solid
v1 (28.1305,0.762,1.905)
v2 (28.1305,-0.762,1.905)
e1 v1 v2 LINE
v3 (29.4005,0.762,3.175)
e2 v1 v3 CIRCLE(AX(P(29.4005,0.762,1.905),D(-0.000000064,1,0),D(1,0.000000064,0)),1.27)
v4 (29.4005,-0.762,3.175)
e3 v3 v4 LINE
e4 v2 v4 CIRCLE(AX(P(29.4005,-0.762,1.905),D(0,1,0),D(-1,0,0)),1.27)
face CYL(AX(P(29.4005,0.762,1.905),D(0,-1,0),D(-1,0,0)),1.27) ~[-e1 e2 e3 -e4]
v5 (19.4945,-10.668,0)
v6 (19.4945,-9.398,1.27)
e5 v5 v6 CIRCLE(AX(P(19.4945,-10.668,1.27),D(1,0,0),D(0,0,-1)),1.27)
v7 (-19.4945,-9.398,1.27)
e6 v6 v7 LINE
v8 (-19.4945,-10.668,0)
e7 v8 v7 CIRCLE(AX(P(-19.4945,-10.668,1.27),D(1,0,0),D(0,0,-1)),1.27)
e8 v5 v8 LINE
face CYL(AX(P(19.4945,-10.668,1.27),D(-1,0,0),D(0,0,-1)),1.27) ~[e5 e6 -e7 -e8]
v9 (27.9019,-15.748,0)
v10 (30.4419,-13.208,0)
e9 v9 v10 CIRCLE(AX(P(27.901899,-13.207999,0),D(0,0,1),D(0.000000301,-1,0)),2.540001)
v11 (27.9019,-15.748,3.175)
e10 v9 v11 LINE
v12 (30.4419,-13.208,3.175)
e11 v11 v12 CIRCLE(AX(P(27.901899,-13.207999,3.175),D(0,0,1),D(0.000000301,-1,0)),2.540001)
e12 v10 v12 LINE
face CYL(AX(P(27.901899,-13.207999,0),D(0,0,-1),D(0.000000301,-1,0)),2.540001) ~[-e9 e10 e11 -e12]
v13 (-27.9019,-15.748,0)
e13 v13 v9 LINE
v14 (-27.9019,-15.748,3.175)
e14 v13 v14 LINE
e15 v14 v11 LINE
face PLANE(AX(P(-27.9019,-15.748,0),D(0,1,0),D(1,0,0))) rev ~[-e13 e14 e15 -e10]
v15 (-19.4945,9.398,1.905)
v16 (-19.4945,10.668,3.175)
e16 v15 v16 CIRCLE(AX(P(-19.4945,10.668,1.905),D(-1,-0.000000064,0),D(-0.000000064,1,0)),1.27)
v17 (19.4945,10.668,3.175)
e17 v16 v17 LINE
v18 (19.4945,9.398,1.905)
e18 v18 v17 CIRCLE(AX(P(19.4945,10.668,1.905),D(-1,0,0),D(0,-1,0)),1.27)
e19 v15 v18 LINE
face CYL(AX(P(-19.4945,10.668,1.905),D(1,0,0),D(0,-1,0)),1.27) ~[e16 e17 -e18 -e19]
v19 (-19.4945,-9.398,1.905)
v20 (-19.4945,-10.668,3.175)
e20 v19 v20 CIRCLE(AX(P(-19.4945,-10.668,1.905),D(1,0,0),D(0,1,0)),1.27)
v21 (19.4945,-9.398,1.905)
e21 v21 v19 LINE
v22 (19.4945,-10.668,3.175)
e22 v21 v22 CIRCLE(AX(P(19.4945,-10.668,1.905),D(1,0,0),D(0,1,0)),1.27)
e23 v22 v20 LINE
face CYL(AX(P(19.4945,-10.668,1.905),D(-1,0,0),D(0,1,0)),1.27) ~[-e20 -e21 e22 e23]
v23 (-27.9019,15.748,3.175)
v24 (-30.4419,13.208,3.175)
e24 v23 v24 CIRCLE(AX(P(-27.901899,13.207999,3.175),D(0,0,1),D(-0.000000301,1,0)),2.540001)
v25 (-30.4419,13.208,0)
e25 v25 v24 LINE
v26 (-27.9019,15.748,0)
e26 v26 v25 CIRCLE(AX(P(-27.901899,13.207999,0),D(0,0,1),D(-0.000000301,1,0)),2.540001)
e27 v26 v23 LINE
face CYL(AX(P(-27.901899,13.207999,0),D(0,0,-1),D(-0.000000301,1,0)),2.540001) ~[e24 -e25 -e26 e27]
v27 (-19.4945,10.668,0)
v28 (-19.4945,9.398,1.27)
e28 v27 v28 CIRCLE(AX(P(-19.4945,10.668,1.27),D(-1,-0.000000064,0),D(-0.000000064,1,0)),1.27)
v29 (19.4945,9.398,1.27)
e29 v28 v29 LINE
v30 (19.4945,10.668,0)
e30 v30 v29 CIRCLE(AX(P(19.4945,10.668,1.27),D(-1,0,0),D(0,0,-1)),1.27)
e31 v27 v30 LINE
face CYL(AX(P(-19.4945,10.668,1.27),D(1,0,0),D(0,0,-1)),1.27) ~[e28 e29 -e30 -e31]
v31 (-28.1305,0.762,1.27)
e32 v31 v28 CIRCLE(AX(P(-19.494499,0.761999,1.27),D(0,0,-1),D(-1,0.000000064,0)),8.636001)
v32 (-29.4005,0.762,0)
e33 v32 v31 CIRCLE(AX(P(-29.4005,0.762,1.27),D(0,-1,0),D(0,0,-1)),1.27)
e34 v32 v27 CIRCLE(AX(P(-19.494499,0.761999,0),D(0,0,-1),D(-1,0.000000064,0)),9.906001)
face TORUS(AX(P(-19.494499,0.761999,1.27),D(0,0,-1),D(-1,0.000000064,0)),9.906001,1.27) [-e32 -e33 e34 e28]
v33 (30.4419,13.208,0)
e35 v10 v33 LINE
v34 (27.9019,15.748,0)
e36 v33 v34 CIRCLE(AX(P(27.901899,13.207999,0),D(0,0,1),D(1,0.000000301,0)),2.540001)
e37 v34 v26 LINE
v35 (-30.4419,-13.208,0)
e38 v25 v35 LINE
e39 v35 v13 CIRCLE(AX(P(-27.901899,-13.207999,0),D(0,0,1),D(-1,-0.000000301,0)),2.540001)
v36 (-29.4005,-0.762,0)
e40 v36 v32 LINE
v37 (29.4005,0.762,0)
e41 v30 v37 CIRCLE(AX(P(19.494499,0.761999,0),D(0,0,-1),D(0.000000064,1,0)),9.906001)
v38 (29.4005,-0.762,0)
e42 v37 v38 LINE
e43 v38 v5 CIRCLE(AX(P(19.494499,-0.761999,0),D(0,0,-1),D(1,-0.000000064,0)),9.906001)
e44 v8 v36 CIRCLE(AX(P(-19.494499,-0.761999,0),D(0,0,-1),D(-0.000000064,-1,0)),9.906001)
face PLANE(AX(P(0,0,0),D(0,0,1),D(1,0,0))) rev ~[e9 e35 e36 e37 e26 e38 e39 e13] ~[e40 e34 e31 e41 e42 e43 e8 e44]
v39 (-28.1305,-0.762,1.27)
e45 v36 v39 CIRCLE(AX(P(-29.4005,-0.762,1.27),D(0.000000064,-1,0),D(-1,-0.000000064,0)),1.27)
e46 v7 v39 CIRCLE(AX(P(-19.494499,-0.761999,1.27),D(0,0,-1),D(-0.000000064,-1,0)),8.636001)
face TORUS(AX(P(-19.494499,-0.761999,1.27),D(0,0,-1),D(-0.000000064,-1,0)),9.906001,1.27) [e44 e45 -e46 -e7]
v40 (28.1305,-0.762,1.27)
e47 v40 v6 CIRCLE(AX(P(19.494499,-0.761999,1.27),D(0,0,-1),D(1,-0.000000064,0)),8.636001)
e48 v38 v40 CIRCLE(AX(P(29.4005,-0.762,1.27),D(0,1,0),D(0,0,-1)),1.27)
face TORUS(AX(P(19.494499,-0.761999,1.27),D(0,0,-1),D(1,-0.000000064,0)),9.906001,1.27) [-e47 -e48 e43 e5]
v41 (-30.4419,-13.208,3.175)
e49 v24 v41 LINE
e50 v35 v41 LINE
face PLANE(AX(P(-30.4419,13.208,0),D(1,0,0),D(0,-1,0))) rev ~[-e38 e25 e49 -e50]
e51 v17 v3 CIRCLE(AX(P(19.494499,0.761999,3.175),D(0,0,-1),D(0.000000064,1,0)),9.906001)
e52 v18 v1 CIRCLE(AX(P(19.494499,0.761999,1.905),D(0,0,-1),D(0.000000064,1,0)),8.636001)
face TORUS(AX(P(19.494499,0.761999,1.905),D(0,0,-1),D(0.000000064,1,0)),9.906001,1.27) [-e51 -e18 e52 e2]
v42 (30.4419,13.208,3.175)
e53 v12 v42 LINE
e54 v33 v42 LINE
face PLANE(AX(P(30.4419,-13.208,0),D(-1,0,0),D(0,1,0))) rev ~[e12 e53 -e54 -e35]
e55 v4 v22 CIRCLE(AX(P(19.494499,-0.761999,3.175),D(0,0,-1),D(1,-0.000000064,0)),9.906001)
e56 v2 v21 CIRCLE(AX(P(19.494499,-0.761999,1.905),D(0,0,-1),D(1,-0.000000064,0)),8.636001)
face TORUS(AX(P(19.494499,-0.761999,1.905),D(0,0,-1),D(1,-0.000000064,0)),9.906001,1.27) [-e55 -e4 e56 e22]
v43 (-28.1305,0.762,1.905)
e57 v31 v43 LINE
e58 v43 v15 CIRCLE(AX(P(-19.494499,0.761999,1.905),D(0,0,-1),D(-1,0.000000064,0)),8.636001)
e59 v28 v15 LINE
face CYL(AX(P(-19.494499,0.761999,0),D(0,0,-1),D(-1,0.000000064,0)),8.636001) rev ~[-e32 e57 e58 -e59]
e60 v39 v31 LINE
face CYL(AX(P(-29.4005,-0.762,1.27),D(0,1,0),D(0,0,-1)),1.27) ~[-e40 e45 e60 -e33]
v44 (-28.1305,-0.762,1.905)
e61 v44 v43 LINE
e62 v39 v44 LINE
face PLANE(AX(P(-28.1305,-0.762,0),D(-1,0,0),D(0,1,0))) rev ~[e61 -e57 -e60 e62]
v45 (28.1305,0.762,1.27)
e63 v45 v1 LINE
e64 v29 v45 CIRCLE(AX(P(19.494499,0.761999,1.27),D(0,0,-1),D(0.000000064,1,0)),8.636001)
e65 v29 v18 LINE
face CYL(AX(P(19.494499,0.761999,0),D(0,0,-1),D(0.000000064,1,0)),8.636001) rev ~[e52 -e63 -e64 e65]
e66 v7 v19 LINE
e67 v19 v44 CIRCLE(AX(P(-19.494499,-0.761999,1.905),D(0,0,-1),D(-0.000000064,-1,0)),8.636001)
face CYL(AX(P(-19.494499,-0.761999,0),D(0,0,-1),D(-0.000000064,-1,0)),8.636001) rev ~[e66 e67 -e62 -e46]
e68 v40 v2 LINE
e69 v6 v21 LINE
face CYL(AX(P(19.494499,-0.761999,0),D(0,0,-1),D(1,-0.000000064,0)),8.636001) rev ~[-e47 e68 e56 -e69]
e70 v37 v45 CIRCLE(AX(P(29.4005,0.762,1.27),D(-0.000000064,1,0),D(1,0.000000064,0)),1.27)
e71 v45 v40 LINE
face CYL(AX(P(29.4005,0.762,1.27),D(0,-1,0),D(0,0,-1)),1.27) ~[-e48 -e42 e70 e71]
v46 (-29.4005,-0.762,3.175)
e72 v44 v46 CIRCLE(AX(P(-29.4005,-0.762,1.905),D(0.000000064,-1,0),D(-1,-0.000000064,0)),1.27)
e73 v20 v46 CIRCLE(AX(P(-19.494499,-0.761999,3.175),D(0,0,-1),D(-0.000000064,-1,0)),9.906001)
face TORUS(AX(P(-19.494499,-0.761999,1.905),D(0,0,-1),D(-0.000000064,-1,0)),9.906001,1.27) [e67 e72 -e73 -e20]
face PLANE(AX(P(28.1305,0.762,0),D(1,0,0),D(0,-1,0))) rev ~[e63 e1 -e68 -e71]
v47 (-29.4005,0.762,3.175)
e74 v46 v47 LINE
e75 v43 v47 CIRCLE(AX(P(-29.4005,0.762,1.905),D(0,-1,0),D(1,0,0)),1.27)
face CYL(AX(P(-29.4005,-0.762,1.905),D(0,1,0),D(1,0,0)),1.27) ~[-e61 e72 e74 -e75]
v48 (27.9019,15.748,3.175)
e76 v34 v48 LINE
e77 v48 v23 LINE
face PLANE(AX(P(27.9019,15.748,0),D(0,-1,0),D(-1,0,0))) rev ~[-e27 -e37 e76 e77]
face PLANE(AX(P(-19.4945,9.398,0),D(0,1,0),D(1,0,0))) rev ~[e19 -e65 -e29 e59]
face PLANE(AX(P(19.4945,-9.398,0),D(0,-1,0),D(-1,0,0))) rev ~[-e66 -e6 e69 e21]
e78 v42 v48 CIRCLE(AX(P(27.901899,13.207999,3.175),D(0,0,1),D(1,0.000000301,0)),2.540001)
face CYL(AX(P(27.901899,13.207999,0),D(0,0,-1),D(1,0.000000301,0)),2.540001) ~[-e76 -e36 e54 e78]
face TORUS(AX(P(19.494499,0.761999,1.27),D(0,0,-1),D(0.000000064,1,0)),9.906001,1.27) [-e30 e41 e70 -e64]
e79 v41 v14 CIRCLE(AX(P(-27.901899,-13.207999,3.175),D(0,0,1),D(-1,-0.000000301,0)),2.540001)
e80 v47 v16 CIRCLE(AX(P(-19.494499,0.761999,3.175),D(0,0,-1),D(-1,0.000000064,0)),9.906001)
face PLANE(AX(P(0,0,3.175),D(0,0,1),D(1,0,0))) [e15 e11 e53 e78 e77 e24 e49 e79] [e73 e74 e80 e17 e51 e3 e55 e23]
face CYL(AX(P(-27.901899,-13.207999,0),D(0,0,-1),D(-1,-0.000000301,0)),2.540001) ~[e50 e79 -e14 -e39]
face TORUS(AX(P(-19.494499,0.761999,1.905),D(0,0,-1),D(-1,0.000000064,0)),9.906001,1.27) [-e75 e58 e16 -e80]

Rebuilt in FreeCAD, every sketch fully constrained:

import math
import FreeCAD as App
import Part
import Sketcher
from FreeCAD import Vector
Q = App.Units.Quantity


def edges_at(feature, points):
    """Names of the edges that pass closest to the given points."""
    edges = feature.Shape.Edges
    near = lambda p: min(range(len(edges)), key=lambda i: edges[i].distToShape(Part.Vertex(*p))[0])
    return sorted({f"Edge{near(p) + 1}" for p in points})

doc = App.newDocument("Part")
params = doc.addObject("Spreadsheet::Sheet", "Params")
for row, (alias, value) in enumerate([
    ("sketch1_radius", "0.1 in"),
    ("sketch1_radius2", "0.34 in"),
    ("sketch1_height", "1.04 in"),
    ("sketch1_height2", "0.06 in"),
    ("sketch1_width", "2.197 in"),
    ("pad1_length", "0.125 in"),
    ("fillet_radius", "0.05 in"),
    ("fillet2_radius", "0.05 in"),
], start=1):
    params.set(f"A{row}", alias)
    params.set(f"B{row}", "=" + value)
    params.setAlias(f"B{row}", alias)

body = doc.addObject("PartDesign::Body", "Body")

# Sketch on XY plane
sketch1 = body.newObject("Sketcher::SketchObject", "Sketch")
sketch1.AttachmentSupport = (doc.getObject("XY_Plane"), [""])
sketch1.MapMode = "FlatFace"
sketch1.addGeometry([
    Part.ArcOfCircle(Part.Circle(Vector(27.9, 13.2, 0), Vector(0, 0, 1), 2.5), math.radians(0), math.radians(90)),  # 0
    Part.LineSegment(Vector(27.9, 15.7, 0), Vector(-27.9, 15.7, 0)),  # 1
    Part.ArcOfCircle(Part.Circle(Vector(-27.9, 13.2, 0), Vector(0, 0, 1), 2.5), math.radians(90), math.radians(180)),  # 2
    Part.LineSegment(Vector(-30.4, 13.2, 0), Vector(-30.4, -13.2, 0)),  # 3
    Part.ArcOfCircle(Part.Circle(Vector(-27.9, -13.2, 0), Vector(0, 0, 1), 2.5), math.radians(-180), math.radians(-90)),  # 4
    Part.LineSegment(Vector(-27.9, -15.7, 0), Vector(27.9, -15.7, 0)),  # 5
    Part.ArcOfCircle(Part.Circle(Vector(27.9, -13.2, 0), Vector(0, 0, 1), 2.5), math.radians(-90), math.radians(0)),  # 6
    Part.LineSegment(Vector(30.4, -13.2, 0), Vector(30.4, 13.2, 0)),  # 7
    Part.LineSegment(Vector(28.1, 0.8, 0), Vector(28.1, -0.8, 0)),  # 8
    Part.ArcOfCircle(Part.Circle(Vector(19.5, -0.8, 0), Vector(0, 0, 1), 8.6), math.radians(-90), math.radians(0)),  # 9
    Part.LineSegment(Vector(19.5, -9.4, 0), Vector(-19.5, -9.4, 0)),  # 10
    Part.ArcOfCircle(Part.Circle(Vector(-19.5, -0.8, 0), Vector(0, 0, 1), 8.6), math.radians(-180), math.radians(-90)),  # 11
    Part.LineSegment(Vector(-28.1, -0.8, 0), Vector(-28.1, 0.8, 0)),  # 12
    Part.ArcOfCircle(Part.Circle(Vector(-19.5, 0.8, 0), Vector(0, 0, 1), 8.6), math.radians(90), math.radians(180)),  # 13
    Part.LineSegment(Vector(-19.5, 9.4, 0), Vector(19.5, 9.4, 0)),  # 14
    Part.ArcOfCircle(Part.Circle(Vector(19.5, 0.8, 0), Vector(0, 0, 1), 8.6), math.radians(0), math.radians(90)),  # 15
], False)
sketch1.addConstraint([
    Sketcher.Constraint("Tangent", 0, 2, 1, 1),
    Sketcher.Constraint("Tangent", 1, 2, 2, 1),
    Sketcher.Constraint("Tangent", 2, 2, 3, 1),
    Sketcher.Constraint("Tangent", 3, 2, 4, 1),
    Sketcher.Constraint("Tangent", 4, 2, 5, 1),
    Sketcher.Constraint("Tangent", 5, 2, 6, 1),
    Sketcher.Constraint("Tangent", 6, 2, 7, 1),
    Sketcher.Constraint("Tangent", 7, 2, 0, 1),
    Sketcher.Constraint("Tangent", 8, 2, 9, 2),
    Sketcher.Constraint("Tangent", 9, 1, 10, 1),
    Sketcher.Constraint("Tangent", 10, 2, 11, 2),
    Sketcher.Constraint("Tangent", 11, 1, 12, 1),
    Sketcher.Constraint("Tangent", 12, 2, 13, 2),
    Sketcher.Constraint("Tangent", 13, 1, 14, 1),
    Sketcher.Constraint("Tangent", 14, 2, 15, 2),
    Sketcher.Constraint("Tangent", 15, 1, 8, 1),
    Sketcher.Constraint("Horizontal", 1),
    Sketcher.Constraint("Vertical", 3),
    Sketcher.Constraint("Horizontal", 5),
    Sketcher.Constraint("Vertical", 7),
    Sketcher.Constraint("Vertical", 8),
    Sketcher.Constraint("Horizontal", 10),
    Sketcher.Constraint("Vertical", 12),
    Sketcher.Constraint("Horizontal", 14),
    Sketcher.Constraint("Equal", 0, 2),
    Sketcher.Constraint("Equal", 2, 4),
    Sketcher.Constraint("Equal", 4, 6),
    Sketcher.Constraint("Equal", 9, 11),
    Sketcher.Constraint("Equal", 11, 13),
    Sketcher.Constraint("Equal", 13, 15),
    Sketcher.Constraint("Symmetric", 0, 3, 4, 3, -1, 1),
    Sketcher.Constraint("Symmetric", 9, 3, 13, 3, -1, 1),
    Sketcher.Constraint("Radius", 0, Q("0.1 in")),
    Sketcher.Constraint("Radius", 9, Q("0.34 in")),
    Sketcher.Constraint("DistanceY", 3, 2, 3, 1, Q("1.04 in")),
    Sketcher.Constraint("DistanceY", 8, 2, 8, 1, Q("0.06 in")),
    Sketcher.Constraint("DistanceX", 1, 2, 1, 1, Q("2.197 in")),
    Sketcher.Constraint("DistanceX", 10, 2, 10, 1, Q("1.535 in")),
])
sketch1.setExpression("Constraints[32]", "Params.sketch1_radius")
sketch1.setExpression("Constraints[33]", "Params.sketch1_radius2")
sketch1.setExpression("Constraints[34]", "Params.sketch1_height")
sketch1.setExpression("Constraints[35]", "Params.sketch1_height2")
sketch1.setExpression("Constraints[36]", "Params.sketch1_width")
pad1 = body.newObject("PartDesign::Pad", "Pad")
pad1.Profile = sketch1
pad1.setExpression("Length", "Params.pad1_length")
doc.recompute()

fillet = body.newObject("PartDesign::Fillet", "Fillet")
fillet.Base = (pad1, edges_at(pad1, [(0, -9.398, 3.175)]))
fillet.setExpression("Radius", "Params.fillet_radius")
doc.recompute()

fillet2 = body.newObject("PartDesign::Fillet", "Fillet001")
fillet2.Base = (fillet, edges_at(fillet, [
    (0, -9.398, 0),
    (25.601, -6.869, 0),
    (-25.601, -6.869, 0),
    (-25.601, 6.869, 0),
    (0, 9.398, 0),
    (25.601, 6.869, 0),
    (28.131, 0, 0),
    (-28.131, 0, 0),
]))
fillet2.setExpression("Radius", "Params.fillet2_radius")

doc.recompute()
